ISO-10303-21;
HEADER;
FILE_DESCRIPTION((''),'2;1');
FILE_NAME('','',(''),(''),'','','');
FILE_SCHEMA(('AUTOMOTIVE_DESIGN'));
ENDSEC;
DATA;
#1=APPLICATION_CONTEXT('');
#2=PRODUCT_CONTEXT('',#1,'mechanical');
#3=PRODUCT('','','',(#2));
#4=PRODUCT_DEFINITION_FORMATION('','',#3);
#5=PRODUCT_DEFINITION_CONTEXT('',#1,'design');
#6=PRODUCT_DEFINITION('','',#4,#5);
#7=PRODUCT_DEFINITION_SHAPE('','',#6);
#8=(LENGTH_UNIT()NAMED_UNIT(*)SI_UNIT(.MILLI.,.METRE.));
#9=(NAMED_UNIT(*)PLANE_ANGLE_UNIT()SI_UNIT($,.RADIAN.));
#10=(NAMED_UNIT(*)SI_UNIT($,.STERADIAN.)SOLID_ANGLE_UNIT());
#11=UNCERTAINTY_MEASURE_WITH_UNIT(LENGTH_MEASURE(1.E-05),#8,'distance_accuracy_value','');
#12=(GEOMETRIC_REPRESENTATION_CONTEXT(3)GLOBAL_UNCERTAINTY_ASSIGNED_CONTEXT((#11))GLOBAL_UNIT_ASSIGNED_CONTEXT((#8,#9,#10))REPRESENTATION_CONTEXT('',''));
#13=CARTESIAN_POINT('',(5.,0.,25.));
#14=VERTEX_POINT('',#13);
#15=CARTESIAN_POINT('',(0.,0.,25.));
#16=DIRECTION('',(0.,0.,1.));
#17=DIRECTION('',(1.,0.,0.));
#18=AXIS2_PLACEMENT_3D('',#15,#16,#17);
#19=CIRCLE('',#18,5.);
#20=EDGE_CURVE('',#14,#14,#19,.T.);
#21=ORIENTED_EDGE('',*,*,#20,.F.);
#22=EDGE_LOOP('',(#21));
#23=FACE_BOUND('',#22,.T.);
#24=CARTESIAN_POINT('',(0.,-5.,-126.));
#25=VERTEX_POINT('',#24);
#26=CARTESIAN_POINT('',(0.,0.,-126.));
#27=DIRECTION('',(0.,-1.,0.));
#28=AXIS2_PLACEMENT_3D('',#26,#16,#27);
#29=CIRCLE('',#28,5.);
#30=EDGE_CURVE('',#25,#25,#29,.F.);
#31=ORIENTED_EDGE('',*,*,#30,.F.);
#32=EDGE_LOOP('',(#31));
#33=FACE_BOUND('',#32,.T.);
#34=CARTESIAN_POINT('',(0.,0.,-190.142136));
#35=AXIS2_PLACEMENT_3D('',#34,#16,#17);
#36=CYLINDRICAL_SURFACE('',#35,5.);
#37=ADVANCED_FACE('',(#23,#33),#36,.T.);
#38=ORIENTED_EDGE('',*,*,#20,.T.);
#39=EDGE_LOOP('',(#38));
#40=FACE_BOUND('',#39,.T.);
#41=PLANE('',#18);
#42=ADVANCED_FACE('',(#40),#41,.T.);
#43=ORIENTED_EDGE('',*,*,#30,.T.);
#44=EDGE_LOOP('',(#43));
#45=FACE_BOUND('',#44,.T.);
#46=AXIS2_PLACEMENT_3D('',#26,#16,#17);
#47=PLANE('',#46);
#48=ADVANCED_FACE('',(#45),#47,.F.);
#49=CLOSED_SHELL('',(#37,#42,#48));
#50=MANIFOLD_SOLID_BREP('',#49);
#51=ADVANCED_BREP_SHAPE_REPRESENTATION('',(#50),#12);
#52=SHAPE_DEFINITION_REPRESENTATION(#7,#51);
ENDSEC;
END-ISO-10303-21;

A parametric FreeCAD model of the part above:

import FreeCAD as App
import Part
import Sketcher

V = App.Vector
Q = App.Units.Quantity

doc = App.newDocument("Part")
body = doc.addObject("PartDesign::Body", "Body")

# Sketch on XY plane
sketch1 = doc.addObject("Sketcher::SketchObject", "Sketch")
body.addObject(sketch1)
sketch1.AttachmentSupport = (doc.XY_Plane, [""])
sketch1.MapMode = "FlatFace"
sketch1.addGeometry(Part.Circle(V(0, 0, 0), V(0, 0, 1), 5), False)
sketch1.addConstraint(Sketcher.Constraint("Coincident", 0, 3, -1, 1))
sketch1.addConstraint(Sketcher.Constraint("Diameter", 0, Q("10 mm")))
pad1 = doc.addObject("PartDesign::Pad", "Pad")
body.addObject(pad1)
pad1.Profile = sketch1
pad1.Type = "TwoLengths"
pad1.Length = 25
pad1.Length2 = 126

doc.recompute()
